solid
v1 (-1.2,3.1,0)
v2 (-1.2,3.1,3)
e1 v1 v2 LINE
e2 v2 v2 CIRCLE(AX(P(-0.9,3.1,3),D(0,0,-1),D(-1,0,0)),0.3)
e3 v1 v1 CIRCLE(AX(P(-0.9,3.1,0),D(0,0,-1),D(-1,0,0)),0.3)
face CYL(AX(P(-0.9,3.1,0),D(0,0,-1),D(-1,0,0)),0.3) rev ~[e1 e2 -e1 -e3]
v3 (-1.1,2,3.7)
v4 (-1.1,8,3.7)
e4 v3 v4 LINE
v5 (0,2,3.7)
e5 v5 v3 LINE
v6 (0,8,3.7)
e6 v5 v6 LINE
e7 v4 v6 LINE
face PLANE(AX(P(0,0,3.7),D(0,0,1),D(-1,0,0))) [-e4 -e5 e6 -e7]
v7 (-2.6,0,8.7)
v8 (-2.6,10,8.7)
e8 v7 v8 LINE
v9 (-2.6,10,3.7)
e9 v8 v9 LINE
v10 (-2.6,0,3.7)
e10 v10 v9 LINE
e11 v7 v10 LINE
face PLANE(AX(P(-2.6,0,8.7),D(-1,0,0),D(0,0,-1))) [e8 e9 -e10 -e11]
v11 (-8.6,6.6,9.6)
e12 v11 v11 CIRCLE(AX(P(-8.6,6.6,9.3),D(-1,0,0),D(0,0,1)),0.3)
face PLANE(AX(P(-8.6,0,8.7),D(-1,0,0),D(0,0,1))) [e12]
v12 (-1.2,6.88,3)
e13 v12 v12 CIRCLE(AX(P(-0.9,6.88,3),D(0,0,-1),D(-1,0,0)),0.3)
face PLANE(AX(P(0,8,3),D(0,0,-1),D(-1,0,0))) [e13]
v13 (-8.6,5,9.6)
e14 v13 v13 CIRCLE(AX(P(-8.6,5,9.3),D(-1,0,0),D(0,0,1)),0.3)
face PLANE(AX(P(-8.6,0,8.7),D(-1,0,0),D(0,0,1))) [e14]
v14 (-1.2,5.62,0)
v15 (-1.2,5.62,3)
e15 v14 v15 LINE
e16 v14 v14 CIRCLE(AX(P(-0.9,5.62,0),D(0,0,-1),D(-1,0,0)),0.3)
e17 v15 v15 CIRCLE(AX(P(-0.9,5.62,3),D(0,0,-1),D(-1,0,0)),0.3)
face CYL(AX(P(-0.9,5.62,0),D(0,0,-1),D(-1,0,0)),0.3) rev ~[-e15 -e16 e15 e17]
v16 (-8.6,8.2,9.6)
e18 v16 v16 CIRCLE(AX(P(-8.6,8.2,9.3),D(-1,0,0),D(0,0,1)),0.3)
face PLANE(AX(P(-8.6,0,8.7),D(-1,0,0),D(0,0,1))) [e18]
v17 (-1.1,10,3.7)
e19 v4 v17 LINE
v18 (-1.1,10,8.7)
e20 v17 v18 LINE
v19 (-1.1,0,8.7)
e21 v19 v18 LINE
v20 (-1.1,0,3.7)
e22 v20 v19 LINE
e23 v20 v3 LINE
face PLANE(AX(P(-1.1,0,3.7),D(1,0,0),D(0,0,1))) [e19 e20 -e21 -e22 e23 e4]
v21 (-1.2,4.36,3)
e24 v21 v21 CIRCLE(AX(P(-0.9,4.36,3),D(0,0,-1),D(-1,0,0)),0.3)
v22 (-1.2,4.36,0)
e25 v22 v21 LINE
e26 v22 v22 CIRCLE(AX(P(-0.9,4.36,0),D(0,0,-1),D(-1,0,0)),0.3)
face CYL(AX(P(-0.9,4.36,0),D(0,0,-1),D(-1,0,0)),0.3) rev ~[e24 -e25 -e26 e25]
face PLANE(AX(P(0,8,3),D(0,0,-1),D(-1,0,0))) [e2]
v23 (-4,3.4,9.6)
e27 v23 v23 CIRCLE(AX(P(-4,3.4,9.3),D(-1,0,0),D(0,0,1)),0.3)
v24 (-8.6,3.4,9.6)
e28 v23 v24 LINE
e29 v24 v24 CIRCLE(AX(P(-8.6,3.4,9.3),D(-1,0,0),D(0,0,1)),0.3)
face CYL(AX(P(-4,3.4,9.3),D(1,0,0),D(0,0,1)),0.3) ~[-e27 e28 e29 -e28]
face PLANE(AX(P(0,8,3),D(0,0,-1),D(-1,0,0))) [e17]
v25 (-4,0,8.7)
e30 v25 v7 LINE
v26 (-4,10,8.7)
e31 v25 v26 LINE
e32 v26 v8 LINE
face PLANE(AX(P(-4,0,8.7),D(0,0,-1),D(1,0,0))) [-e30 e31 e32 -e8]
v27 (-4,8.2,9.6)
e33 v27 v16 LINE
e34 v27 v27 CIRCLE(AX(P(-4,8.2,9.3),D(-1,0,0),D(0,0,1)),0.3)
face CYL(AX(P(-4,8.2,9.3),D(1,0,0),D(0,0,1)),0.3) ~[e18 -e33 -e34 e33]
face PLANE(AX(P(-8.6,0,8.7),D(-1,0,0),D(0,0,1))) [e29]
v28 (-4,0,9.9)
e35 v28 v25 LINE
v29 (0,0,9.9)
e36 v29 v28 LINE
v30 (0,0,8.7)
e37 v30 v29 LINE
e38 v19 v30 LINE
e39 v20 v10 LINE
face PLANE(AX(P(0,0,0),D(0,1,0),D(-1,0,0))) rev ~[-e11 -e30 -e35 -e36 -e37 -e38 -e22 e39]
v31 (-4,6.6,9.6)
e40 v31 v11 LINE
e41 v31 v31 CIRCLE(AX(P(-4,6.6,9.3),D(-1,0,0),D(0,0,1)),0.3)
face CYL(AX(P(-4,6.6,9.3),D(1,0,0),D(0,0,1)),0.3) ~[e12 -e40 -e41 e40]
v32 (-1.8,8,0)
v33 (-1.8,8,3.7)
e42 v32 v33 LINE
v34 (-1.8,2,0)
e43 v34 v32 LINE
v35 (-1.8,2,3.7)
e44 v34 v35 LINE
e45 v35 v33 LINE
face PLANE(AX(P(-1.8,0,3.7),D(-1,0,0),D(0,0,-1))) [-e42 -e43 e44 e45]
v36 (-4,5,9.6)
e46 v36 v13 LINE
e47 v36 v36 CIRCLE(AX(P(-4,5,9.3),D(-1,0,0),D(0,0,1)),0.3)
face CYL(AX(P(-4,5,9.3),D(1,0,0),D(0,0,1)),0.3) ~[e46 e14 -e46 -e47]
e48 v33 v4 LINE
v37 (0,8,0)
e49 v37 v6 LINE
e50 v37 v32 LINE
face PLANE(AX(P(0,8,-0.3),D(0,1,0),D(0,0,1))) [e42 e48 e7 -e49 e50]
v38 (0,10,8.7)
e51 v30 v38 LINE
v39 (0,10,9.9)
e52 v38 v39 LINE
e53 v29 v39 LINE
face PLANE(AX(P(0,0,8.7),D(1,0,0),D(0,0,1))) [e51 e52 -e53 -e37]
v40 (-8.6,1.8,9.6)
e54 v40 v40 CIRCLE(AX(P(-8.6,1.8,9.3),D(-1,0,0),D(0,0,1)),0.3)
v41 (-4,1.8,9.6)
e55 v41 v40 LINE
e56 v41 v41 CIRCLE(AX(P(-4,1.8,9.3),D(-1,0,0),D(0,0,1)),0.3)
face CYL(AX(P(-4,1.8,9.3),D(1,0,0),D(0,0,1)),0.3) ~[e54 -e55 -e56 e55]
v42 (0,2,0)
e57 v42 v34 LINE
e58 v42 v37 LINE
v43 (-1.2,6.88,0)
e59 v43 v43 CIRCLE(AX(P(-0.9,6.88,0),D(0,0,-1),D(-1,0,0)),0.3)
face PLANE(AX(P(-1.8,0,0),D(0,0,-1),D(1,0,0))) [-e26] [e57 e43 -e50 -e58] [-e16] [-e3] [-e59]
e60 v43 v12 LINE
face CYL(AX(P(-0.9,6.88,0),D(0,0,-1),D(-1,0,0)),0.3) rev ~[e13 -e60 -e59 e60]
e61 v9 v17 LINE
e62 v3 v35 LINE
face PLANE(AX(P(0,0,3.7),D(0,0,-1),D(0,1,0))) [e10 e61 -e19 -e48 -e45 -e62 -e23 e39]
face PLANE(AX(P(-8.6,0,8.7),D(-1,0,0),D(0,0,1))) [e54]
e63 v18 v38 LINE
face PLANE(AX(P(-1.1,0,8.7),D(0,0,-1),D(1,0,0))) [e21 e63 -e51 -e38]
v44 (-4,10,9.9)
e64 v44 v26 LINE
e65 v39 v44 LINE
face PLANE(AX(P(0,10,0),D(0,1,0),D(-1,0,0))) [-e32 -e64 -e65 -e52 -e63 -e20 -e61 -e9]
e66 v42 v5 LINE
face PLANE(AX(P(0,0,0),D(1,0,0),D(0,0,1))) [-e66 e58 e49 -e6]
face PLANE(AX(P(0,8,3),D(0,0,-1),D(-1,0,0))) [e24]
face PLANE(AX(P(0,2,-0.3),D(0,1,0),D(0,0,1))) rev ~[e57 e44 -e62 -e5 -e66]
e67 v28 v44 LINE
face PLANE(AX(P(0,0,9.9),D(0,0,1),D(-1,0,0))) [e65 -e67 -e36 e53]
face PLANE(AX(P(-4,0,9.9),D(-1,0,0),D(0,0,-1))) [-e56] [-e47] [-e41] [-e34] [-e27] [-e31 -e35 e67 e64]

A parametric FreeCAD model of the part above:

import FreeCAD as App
import Part
import Sketcher

doc = App.newDocument("Part")
body = doc.addObject("PartDesign::Body", "Body")

sketch1 = doc.addObject("Sketcher::SketchObject", "Sketch")
body.addObject(sketch1)
sketch1.AttachmentSupport = (doc.XZ_Plane, [""])
sketch1.MapMode = "FlatFace"
sketch1.addGeometry([
    Part.LineSegment(App.Vector(0, 3.7, 0), App.Vector(0, 0, 0)),
    Part.LineSegment(App.Vector(0, 0, 0), App.Vector(-1.8, 0, 0)),
    Part.LineSegment(App.Vector(-1.8, 0, 0), App.Vector(-1.8, 3.7, 0)),
    Part.LineSegment(App.Vector(-1.8, 3.7, 0), App.Vector(-2.6, 3.7, 0)),
    Part.LineSegment(App.Vector(-2.6, 3.7, 0), App.Vector(-2.6, 8.7, 0)),
    Part.LineSegment(App.Vector(-2.6, 8.7, 0), App.Vector(-4, 8.7, 0)),
    Part.LineSegment(App.Vector(-4, 8.7, 0), App.Vector(-4, 9.9, 0)),
    Part.LineSegment(App.Vector(-4, 9.9, 0), App.Vector(0, 9.9, 0)),
    Part.LineSegment(App.Vector(0, 9.9, 0), App.Vector(0, 8.7, 0)),
    Part.LineSegment(App.Vector(0, 8.7, 0), App.Vector(-1.1, 8.7, 0)),
    Part.LineSegment(App.Vector(-1.1, 8.7, 0), App.Vector(-1.1, 3.7, 0)),
    Part.LineSegment(App.Vector(-1.1, 3.7, 0), App.Vector(0, 3.7, 0)),
], False)
sketch1.addConstraint([
    Sketcher.Constraint("Coincident", 0, 2, 1, 1),
    Sketcher.Constraint("Coincident", 1, 2, 2, 1),
    Sketcher.Constraint("Coincident", 2, 2, 3, 1),
    Sketcher.Constraint("Coincident", 3, 2, 4, 1),
    Sketcher.Constraint("Coincident", 4, 2, 5, 1),
    Sketcher.Constraint("Coincident", 5, 2, 6, 1),
    Sketcher.Constraint("Coincident", 6, 2, 7, 1),
    Sketcher.Constraint("Coincident", 7, 2, 8, 1),
    Sketcher.Constraint("Coincident", 8, 2, 9, 1),
    Sketcher.Constraint("Coincident", 9, 2, 10, 1),
    Sketcher.Constraint("Coincident", 10, 2, 11, 1),
    Sketcher.Constraint("Coincident", 11, 2, 0, 1),
    Sketcher.Constraint("Vertical", 0),
    Sketcher.Constraint("Horizontal", 1),
    Sketcher.Constraint("Vertical", 2),
    Sketcher.Constraint("Horizontal", 3),
    Sketcher.Constraint("Vertical", 4),
    Sketcher.Constraint("Horizontal", 5),
    Sketcher.Constraint("Vertical", 6),
    Sketcher.Constraint("Horizontal", 7),
    Sketcher.Constraint("Vertical", 8),
    Sketcher.Constraint("Horizontal", 9),
    Sketcher.Constraint("Vertical", 10),
    Sketcher.Constraint("Horizontal", 11),
    Sketcher.Constraint("Coincident", 0, 2, -1, 1),
    Sketcher.Constraint("PointOnObject", 7, 2, -2),
    Sketcher.Constraint("Horizontal", 5, 2, 8, 2),
    Sketcher.Constraint("Horizontal", 3, 2, 10, 2),
    Sketcher.Constraint("DistanceX", 7, 1, 7, 2, 4.0),
    Sketcher.Constraint("DistanceY", 4, 1, 4, 2, 5.0),
    Sketcher.Constraint("DistanceX", 1, 2, 1, 1, 1.8),
    Sketcher.Constraint("DistanceX", 9, 2, 9, 1, 1.1),
    Sketcher.Constraint("DistanceY", 0, 2, 0, 1, 3.7),
    Sketcher.Constraint("DistanceY", 6, 1, 6, 2, 1.2),
    Sketcher.Constraint("DistanceX", 4, 2, 9, 2, 1.5),
])
pad1 = doc.addObject("PartDesign::Pad", "Pad")
body.addObject(pad1)
pad1.Profile = sketch1
pad1.Length = 10
pad1.Reversed = True

sketch2 = doc.addObject("Sketcher::SketchObject", "Sketch001")
body.addObject(sketch2)
sketch2.AttachmentSupport = (doc.YZ_Plane, [""])
sketch2.MapMode = "FlatFace"
sketch2.addGeometry([
    Part.LineSegment(App.Vector(10, 3.7, 0), App.Vector(8, 3.7, 0)),
    Part.LineSegment(App.Vector(8, 3.7, 0), App.Vector(8, -0.3, 0)),
    Part.LineSegment(App.Vector(8, -0.3, 0), App.Vector(10, -0.3, 0)),
    Part.LineSegment(App.Vector(10, -0.3, 0), App.Vector(10, 3.7, 0)),
    Part.LineSegment(App.Vector(2, 3.7, 0), App.Vector(0, 3.7, 0)),
    Part.LineSegment(App.Vector(0, 3.7, 0), App.Vector(0, -0.3, 0)),
    Part.LineSegment(App.Vector(0, -0.3, 0), App.Vector(2, -0.3, 0)),
    Part.LineSegment(App.Vector(2, -0.3, 0), App.Vector(2, 3.7, 0)),
], False)
sketch2.addConstraint([
    Sketcher.Constraint("Coincident", 0, 2, 1, 1),
    Sketcher.Constraint("Coincident", 1, 2, 2, 1),
    Sketcher.Constraint("Coincident", 2, 2, 3, 1),
    Sketcher.Constraint("Coincident", 3, 2, 0, 1),
    Sketcher.Constraint("Coincident", 4, 2, 5, 1),
    Sketcher.Constraint("Coincident", 5, 2, 6, 1),
    Sketcher.Constraint("Coincident", 6, 2, 7, 1),
    Sketcher.Constraint("Coincident", 7, 2, 4, 1),
    Sketcher.Constraint("Horizontal", 0),
    Sketcher.Constraint("Vertical", 1),
    Sketcher.Constraint("Horizontal", 2),
    Sketcher.Constraint("Vertical", 3),
    Sketcher.Constraint("Horizontal", 4),
    Sketcher.Constraint("Vertical", 5),
    Sketcher.Constraint("Horizontal", 6),
    Sketcher.Constraint("Vertical", 7),
    Sketcher.Constraint("PointOnObject", 4, 2, -2),
    Sketcher.Constraint("Horizontal", 3, 2, 4, 2),
    Sketcher.Constraint("Horizontal", 2, 2, 5, 2),
    Sketcher.Constraint("Equal", 2, 4),
    Sketcher.Constraint("DistanceY", 1, 2, 1, 1, 4.0),
    Sketcher.Constraint("DistanceX", 6, 2, 1, 2, 6.0),
    Sketcher.Constraint("DistanceX", 0, 2, 0, 1, 2.0),
    Sketcher.Constraint("DistanceY", -1, 1, 0, 2, 3.7),
])
pocket1 = doc.addObject("PartDesign::Pocket", "Pocket")
body.addObject(pocket1)
pocket1.Profile = sketch2
pocket1.Type = "UpToFirst"

sketch3 = doc.addObject("Sketcher::SketchObject", "Sketch002")
body.addObject(sketch3)
sketch3.AttachmentSupport = (doc.XY_Plane, [""])
sketch3.MapMode = "FlatFace"
sketch3.addGeometry([
    Part.Circle(App.Vector(-0.9, 6.88, 0), App.Vector(0, 0, 1), 0.3),
    Part.Circle(App.Vector(-0.9, 5.62, 0), App.Vector(0, 0, 1), 0.3),
    Part.Circle(App.Vector(-0.9, 4.36, 0), App.Vector(0, 0, 1), 0.3),
    Part.Circle(App.Vector(-0.9, 3.1, 0), App.Vector(0, 0, 1), 0.3),
], False)
sketch3.addConstraint([
    Sketcher.Constraint("Equal", 0, 1),
    Sketcher.Constraint("Equal", 1, 2),
    Sketcher.Constraint("Equal", 2, 3),
    Sketcher.Constraint("Vertical", 0, 3, 1, 3),
    Sketcher.Constraint("Vertical", 1, 3, 2, 3),
    Sketcher.Constraint("Vertical", 2, 3, 3, 3),
    Sketcher.Constraint("Diameter", 0, 0.6),
    Sketcher.Constraint("DistanceX", 0, 3, -1, 1, 0.9),
    Sketcher.Constraint("DistanceY", 1, 3, 0, 3, 1.26),
    Sketcher.Constraint("DistanceY", 2, 3, 1, 3, 1.26),
    Sketcher.Constraint("DistanceY", 3, 3, 2, 3, 1.26),
    Sketcher.Constraint("DistanceY", -1, 1, 3, 3, 3.1),
])
pocket2 = doc.addObject("PartDesign::Pocket", "Pocket001")
body.addObject(pocket2)
pocket2.Profile = sketch3
pocket2.Length = 3
pocket2.Reversed = True

sketch4 = doc.addObject("Sketcher::SketchObject", "Sketch003")
body.addObject(sketch4)
sketch4.AttachmentSupport = (doc.YZ_Plane, [""])
sketch4.MapMode = "FlatFace"
sketch4.AttachmentOffset = App.Placement(App.Vector(0, 0, -4), App.Rotation())
sketch4.addGeometry([
    Part.Circle(App.Vector(8.2, 9.3, 0), App.Vector(0, 0, 1), 0.3),
    Part.Circle(App.Vector(6.6, 9.3, 0), App.Vector(0, 0, 1), 0.3),
    Part.Circle(App.Vector(5, 9.3, 0), App.Vector(0, 0, 1), 0.3),
    Part.Circle(App.Vector(3.4, 9.3, 0), App.Vector(0, 0, 1), 0.3),
    Part.Circle(App.Vector(1.8, 9.3, 0), App.Vector(0, 0, 1), 0.3),
], False)
sketch4.addConstraint([
    Sketcher.Constraint("Equal", 0, 1),
    Sketcher.Constraint("Equal", 1, 2),
    Sketcher.Constraint("Equal", 2, 3),
    Sketcher.Constraint("Equal", 3, 4),
    Sketcher.Constraint("Horizontal", 0, 3, 1, 3),
    Sketcher.Constraint("Horizontal", 1, 3, 2, 3),
    Sketcher.Constraint("Horizontal", 2, 3, 3, 3),
    Sketcher.Constraint("Horizontal", 3, 3, 4, 3),
    Sketcher.Constraint("Diameter", 0, 0.6),
    Sketcher.Constraint("DistanceX", -1, 1, 4, 3, 1.8),
    Sketcher.Constraint("DistanceX", 1, 3, 0, 3, 1.6),
    Sketcher.Constraint("DistanceX", 2, 3, 1, 3, 1.6),
    Sketcher.Constraint("DistanceX", 3, 3, 2, 3, 1.6),
    Sketcher.Constraint("DistanceX", 4, 3, 3, 3, 1.6),
    Sketcher.Constraint("DistanceY", -1, 1, 0, 3, 9.3),
])
pad2 = doc.addObject("PartDesign::Pad", "Pad001")
body.addObject(pad2)
pad2.Profile = sketch4
pad2.Length = 4.6
pad2.Reversed = True

doc.recompute()
